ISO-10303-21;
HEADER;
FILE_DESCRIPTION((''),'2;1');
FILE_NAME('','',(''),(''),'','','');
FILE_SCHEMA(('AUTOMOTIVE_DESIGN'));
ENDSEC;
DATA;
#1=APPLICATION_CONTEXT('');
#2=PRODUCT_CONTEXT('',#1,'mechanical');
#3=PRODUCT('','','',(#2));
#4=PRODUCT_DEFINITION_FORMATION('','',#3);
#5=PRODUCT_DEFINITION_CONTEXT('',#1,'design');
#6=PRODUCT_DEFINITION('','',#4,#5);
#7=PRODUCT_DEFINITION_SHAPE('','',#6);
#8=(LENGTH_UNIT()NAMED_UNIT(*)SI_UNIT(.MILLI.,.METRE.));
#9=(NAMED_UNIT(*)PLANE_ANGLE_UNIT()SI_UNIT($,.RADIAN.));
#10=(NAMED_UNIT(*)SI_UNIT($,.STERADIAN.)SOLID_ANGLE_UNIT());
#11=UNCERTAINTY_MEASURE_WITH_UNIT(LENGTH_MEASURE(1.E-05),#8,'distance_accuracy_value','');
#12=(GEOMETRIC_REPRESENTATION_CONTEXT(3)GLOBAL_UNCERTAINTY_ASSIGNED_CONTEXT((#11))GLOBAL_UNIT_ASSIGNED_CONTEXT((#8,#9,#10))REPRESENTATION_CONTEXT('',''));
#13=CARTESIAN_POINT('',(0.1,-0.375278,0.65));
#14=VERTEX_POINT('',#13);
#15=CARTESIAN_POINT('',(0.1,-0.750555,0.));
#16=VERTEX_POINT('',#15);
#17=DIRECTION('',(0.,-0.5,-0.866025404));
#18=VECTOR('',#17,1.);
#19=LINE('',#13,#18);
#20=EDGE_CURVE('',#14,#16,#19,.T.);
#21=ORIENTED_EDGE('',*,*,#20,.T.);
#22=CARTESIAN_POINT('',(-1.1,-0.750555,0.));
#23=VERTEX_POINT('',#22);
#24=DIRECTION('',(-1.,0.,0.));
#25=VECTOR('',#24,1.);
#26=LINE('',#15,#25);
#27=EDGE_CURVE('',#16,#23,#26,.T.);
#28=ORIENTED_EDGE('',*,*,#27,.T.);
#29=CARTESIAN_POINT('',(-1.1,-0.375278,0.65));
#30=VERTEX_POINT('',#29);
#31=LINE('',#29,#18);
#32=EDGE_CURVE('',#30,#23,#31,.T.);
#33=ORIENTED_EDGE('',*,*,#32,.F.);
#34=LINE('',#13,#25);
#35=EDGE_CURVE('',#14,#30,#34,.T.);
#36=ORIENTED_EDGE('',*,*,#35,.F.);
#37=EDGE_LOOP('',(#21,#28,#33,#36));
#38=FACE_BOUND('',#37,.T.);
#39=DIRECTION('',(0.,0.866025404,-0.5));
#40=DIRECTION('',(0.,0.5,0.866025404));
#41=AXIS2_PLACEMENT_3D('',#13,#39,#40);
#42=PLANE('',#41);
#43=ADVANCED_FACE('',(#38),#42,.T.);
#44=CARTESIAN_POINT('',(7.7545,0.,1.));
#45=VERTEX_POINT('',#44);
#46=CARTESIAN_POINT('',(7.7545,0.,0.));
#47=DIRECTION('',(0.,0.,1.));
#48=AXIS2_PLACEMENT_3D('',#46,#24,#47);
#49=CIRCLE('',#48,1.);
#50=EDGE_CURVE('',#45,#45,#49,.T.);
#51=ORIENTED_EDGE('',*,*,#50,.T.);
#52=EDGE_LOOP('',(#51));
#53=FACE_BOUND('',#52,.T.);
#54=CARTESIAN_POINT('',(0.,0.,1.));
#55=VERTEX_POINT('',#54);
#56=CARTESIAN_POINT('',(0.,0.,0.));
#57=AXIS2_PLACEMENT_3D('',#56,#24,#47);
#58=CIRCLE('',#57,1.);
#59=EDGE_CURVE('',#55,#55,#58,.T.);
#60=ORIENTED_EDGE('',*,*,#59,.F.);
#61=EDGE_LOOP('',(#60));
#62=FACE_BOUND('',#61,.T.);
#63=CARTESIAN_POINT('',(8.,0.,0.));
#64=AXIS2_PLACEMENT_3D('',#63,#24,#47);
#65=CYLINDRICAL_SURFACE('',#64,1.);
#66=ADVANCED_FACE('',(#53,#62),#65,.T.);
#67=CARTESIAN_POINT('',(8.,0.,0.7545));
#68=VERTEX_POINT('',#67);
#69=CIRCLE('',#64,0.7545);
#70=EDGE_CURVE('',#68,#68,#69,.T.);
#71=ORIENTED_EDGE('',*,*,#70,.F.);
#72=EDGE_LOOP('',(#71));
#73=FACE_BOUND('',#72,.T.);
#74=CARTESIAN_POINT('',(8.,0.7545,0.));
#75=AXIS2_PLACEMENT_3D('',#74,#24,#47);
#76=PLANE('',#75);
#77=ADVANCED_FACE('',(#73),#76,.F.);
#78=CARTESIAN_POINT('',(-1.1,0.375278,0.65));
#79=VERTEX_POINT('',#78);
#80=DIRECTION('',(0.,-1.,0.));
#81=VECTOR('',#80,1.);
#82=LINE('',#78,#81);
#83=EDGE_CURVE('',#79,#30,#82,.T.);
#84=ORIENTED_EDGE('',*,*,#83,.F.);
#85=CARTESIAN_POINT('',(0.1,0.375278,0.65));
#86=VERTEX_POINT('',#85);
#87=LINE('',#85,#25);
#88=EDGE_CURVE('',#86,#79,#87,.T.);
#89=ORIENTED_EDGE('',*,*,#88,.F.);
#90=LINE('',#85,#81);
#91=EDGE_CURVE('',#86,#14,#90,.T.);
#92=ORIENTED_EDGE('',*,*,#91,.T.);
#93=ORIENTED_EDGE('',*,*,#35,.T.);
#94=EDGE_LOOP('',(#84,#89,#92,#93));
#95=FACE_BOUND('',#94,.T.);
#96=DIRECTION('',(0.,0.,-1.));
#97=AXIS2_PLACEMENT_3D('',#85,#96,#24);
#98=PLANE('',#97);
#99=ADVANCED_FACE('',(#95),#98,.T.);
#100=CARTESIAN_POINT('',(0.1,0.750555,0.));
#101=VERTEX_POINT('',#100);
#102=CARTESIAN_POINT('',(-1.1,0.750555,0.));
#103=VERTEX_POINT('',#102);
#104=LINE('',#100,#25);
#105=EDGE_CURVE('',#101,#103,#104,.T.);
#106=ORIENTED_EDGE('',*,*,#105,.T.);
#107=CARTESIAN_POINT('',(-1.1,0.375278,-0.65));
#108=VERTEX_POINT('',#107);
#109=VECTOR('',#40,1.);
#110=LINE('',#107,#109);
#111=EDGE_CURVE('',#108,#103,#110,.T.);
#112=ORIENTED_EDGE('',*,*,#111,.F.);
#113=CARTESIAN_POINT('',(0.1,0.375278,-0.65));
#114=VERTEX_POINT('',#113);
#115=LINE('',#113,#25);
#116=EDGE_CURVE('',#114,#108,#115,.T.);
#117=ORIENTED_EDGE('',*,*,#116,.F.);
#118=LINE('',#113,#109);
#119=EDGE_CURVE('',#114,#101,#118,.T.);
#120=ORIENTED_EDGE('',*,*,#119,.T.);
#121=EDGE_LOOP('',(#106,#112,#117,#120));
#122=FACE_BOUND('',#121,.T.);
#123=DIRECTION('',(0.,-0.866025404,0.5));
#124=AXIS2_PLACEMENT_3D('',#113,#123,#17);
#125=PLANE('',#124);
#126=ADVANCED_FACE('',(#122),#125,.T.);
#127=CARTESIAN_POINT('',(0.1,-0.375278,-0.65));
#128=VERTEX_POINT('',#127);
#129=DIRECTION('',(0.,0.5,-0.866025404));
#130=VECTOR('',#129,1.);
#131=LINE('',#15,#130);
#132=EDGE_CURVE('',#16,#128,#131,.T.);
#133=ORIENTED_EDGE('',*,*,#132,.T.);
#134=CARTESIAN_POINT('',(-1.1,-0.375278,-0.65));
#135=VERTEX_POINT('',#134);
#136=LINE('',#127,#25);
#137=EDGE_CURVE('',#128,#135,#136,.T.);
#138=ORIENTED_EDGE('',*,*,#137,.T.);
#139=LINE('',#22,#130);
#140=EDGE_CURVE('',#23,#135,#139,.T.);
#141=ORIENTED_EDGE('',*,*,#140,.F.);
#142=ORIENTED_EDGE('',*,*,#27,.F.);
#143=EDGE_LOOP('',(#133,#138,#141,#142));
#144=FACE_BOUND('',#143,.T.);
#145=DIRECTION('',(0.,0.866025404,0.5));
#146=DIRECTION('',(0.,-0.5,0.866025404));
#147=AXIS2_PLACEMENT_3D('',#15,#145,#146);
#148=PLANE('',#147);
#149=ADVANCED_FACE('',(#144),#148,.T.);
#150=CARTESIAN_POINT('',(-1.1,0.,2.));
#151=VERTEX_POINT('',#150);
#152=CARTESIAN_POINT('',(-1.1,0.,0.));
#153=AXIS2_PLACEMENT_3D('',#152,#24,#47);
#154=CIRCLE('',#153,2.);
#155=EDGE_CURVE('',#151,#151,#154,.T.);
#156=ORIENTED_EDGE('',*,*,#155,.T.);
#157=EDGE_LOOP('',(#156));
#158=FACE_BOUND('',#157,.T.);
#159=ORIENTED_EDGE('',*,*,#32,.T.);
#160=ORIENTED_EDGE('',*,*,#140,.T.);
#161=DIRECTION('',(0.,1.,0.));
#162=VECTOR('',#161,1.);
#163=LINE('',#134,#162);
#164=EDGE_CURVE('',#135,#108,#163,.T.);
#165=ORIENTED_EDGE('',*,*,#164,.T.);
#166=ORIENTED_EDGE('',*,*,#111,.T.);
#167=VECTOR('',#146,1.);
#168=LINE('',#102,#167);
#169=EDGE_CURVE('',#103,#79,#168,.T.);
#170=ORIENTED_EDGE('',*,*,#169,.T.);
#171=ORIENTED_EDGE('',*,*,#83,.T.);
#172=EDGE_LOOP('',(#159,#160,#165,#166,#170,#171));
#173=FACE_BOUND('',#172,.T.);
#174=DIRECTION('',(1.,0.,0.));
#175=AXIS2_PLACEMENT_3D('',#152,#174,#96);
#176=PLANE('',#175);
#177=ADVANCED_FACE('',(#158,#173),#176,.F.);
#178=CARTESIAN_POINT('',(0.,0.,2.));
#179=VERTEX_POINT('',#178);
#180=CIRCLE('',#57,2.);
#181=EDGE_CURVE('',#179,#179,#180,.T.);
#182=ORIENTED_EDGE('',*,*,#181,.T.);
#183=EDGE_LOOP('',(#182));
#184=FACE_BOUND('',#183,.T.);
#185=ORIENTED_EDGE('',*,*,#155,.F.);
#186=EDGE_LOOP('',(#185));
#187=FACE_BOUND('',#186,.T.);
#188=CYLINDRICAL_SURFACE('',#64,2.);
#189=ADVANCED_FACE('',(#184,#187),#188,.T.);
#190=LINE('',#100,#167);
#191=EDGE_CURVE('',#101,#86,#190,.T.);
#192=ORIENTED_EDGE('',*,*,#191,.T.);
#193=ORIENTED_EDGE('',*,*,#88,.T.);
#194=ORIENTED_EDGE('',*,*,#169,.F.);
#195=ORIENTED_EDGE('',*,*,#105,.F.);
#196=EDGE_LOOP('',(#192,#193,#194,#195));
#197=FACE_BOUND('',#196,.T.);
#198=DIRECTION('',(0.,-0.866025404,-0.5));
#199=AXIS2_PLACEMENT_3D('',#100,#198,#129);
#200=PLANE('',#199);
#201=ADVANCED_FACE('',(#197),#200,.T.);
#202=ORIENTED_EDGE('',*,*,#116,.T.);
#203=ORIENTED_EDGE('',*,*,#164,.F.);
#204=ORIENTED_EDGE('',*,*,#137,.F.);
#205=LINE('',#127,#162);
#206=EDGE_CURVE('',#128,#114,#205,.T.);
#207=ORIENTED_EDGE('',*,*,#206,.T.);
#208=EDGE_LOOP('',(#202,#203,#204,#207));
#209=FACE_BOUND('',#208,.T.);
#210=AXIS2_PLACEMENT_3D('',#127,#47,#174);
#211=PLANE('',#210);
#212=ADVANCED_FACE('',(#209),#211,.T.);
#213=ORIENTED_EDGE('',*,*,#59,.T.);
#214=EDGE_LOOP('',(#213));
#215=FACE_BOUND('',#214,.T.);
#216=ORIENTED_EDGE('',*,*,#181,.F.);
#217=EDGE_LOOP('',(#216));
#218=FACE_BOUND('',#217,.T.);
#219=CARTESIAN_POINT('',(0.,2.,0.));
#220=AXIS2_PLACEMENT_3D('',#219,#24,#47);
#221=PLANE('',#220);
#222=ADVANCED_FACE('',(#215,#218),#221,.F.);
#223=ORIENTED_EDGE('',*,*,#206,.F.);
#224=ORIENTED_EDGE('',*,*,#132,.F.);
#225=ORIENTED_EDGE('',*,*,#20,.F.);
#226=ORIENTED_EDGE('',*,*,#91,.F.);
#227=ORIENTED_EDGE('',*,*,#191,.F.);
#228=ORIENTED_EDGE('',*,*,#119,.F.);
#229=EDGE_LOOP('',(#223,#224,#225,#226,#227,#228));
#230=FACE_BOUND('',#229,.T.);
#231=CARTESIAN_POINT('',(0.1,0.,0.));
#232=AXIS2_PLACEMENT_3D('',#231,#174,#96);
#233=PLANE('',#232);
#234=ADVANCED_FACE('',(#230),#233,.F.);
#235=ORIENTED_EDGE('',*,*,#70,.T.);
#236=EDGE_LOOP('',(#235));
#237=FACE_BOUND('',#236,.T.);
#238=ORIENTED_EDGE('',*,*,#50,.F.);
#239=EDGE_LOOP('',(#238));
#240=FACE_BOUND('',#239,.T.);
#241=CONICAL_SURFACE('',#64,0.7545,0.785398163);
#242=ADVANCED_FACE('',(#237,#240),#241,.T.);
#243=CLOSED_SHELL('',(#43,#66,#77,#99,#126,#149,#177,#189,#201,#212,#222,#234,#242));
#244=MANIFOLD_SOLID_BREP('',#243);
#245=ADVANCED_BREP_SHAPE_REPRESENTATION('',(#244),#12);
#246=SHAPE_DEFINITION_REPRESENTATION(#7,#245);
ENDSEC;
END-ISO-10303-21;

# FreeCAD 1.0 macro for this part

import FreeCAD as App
import Part
import Sketcher

V = App.Vector
Q = App.Units.Quantity


def add_polygon(sketch, points):
    """Adds a closed chain of lines whose ends are joined by coincident constraints."""
    first, n = sketch.GeometryCount, len(points)
    for a, b in zip(points, points[1:] + points[:1]):
        sketch.addGeometry(Part.LineSegment(App.Vector(*a, 0), App.Vector(*b, 0)), False)
    for i in range(n):
        sketch.addConstraint(Sketcher.Constraint("Coincident", first + i, 2, first + (i + 1) % n, 1))

doc = App.newDocument("Part")
body = doc.addObject("PartDesign::Body", "Body")

sketch1 = doc.addObject("Sketcher::SketchObject", "Sketch")
body.addObject(sketch1)
sketch1.AttachmentSupport = (doc.XY_Plane, [""])
sketch1.MapMode = "FlatFace"
add_polygon(sketch1, [(-1.1, 2), (-1.1, 0), (8, 0), (8, 0.75), (7.75, 1), (0, 1), (0, 2)])
sketch1.addConstraint(Sketcher.Constraint("Vertical", 0))
sketch1.addConstraint(Sketcher.Constraint("Horizontal", 1))
sketch1.addConstraint(Sketcher.Constraint("Vertical", 2))
sketch1.addConstraint(Sketcher.Constraint("Horizontal", 4))
sketch1.addConstraint(Sketcher.Constraint("Vertical", 5))
sketch1.addConstraint(Sketcher.Constraint("Horizontal", 6))
sketch1.addConstraint(Sketcher.Constraint("PointOnObject", 0, 2, -1))
sketch1.addConstraint(Sketcher.Constraint("PointOnObject", 4, 2, -2))
sketch1.addConstraint(Sketcher.Constraint("DistanceY", 0, 2, 0, 1, Q("2 mm")))
sketch1.addConstraint(Sketcher.Constraint("DistanceY", 5, 1, 5, 2, Q("1 mm")))
sketch1.addConstraint(Sketcher.Constraint("Angle", 3, Q("135 deg")))
sketch1.addConstraint(Sketcher.Constraint("DistanceX", 1, 1, 1, 2, Q("9.1 mm")))
sketch1.addConstraint(Sketcher.Constraint("DistanceX", 6, 2, 6, 1, Q("1.1 mm")))
sketch1.addConstraint(Sketcher.Constraint("DistanceX", 4, 2, 4, 1, Q("7.7545 mm")))
revolution = doc.addObject("PartDesign::Revolution", "Revolution")
body.addObject(revolution)
revolution.Profile = sketch1
revolution.ReferenceAxis = (sketch1, ["H_Axis"])
revolution.Angle = 360

sketch2 = doc.addObject("Sketcher::SketchObject", "Sketch001")
body.addObject(sketch2)
sketch2.AttachmentSupport = (doc.YZ_Plane, [""])
sketch2.MapMode = "FlatFace"
sketch2.AttachmentOffset = App.Placement(V(0, 0, -1.1), App.Rotation())
add_polygon(sketch2, [(-0.4, 0.7), (-0.8, 0), (-0.4, -0.7), (0.4, -0.7), (0.8, 0), (0.4, 0.7)])
sketch2.addConstraint(Sketcher.Constraint("Horizontal", 2))
sketch2.addConstraint(Sketcher.Constraint("Horizontal", 5))
sketch2.addConstraint(Sketcher.Constraint("Symmetric", 0, 2, 3, 2, -1, 1))
sketch2.addConstraint(Sketcher.Constraint("Symmetric", 1, 2, 4, 2, -1, 1))
sketch2.addConstraint(Sketcher.Constraint("PointOnObject", 0, 2, -1))
sketch2.addConstraint(Sketcher.Constraint("Parallel", 0, 3))
sketch2.addConstraint(Sketcher.Constraint("Vertical", 2, 2, 4, 2))
sketch2.addConstraint(Sketcher.Constraint("Angle", 0, Q("-120 deg")))
sketch2.addConstraint(Sketcher.Constraint("DistanceY", 2, 2, 4, 2, Q("1.3 mm")))
sketch2.addConstraint(Sketcher.Constraint("DistanceX", 2, 1, 2, 2, Q("0.750555 mm")))
pocket1 = doc.addObject("PartDesign::Pocket", "Pocket")
body.addObject(pocket1)
pocket1.Profile = sketch2
pocket1.Length = 1.2
pocket1.Reversed = True

doc.recompute()
